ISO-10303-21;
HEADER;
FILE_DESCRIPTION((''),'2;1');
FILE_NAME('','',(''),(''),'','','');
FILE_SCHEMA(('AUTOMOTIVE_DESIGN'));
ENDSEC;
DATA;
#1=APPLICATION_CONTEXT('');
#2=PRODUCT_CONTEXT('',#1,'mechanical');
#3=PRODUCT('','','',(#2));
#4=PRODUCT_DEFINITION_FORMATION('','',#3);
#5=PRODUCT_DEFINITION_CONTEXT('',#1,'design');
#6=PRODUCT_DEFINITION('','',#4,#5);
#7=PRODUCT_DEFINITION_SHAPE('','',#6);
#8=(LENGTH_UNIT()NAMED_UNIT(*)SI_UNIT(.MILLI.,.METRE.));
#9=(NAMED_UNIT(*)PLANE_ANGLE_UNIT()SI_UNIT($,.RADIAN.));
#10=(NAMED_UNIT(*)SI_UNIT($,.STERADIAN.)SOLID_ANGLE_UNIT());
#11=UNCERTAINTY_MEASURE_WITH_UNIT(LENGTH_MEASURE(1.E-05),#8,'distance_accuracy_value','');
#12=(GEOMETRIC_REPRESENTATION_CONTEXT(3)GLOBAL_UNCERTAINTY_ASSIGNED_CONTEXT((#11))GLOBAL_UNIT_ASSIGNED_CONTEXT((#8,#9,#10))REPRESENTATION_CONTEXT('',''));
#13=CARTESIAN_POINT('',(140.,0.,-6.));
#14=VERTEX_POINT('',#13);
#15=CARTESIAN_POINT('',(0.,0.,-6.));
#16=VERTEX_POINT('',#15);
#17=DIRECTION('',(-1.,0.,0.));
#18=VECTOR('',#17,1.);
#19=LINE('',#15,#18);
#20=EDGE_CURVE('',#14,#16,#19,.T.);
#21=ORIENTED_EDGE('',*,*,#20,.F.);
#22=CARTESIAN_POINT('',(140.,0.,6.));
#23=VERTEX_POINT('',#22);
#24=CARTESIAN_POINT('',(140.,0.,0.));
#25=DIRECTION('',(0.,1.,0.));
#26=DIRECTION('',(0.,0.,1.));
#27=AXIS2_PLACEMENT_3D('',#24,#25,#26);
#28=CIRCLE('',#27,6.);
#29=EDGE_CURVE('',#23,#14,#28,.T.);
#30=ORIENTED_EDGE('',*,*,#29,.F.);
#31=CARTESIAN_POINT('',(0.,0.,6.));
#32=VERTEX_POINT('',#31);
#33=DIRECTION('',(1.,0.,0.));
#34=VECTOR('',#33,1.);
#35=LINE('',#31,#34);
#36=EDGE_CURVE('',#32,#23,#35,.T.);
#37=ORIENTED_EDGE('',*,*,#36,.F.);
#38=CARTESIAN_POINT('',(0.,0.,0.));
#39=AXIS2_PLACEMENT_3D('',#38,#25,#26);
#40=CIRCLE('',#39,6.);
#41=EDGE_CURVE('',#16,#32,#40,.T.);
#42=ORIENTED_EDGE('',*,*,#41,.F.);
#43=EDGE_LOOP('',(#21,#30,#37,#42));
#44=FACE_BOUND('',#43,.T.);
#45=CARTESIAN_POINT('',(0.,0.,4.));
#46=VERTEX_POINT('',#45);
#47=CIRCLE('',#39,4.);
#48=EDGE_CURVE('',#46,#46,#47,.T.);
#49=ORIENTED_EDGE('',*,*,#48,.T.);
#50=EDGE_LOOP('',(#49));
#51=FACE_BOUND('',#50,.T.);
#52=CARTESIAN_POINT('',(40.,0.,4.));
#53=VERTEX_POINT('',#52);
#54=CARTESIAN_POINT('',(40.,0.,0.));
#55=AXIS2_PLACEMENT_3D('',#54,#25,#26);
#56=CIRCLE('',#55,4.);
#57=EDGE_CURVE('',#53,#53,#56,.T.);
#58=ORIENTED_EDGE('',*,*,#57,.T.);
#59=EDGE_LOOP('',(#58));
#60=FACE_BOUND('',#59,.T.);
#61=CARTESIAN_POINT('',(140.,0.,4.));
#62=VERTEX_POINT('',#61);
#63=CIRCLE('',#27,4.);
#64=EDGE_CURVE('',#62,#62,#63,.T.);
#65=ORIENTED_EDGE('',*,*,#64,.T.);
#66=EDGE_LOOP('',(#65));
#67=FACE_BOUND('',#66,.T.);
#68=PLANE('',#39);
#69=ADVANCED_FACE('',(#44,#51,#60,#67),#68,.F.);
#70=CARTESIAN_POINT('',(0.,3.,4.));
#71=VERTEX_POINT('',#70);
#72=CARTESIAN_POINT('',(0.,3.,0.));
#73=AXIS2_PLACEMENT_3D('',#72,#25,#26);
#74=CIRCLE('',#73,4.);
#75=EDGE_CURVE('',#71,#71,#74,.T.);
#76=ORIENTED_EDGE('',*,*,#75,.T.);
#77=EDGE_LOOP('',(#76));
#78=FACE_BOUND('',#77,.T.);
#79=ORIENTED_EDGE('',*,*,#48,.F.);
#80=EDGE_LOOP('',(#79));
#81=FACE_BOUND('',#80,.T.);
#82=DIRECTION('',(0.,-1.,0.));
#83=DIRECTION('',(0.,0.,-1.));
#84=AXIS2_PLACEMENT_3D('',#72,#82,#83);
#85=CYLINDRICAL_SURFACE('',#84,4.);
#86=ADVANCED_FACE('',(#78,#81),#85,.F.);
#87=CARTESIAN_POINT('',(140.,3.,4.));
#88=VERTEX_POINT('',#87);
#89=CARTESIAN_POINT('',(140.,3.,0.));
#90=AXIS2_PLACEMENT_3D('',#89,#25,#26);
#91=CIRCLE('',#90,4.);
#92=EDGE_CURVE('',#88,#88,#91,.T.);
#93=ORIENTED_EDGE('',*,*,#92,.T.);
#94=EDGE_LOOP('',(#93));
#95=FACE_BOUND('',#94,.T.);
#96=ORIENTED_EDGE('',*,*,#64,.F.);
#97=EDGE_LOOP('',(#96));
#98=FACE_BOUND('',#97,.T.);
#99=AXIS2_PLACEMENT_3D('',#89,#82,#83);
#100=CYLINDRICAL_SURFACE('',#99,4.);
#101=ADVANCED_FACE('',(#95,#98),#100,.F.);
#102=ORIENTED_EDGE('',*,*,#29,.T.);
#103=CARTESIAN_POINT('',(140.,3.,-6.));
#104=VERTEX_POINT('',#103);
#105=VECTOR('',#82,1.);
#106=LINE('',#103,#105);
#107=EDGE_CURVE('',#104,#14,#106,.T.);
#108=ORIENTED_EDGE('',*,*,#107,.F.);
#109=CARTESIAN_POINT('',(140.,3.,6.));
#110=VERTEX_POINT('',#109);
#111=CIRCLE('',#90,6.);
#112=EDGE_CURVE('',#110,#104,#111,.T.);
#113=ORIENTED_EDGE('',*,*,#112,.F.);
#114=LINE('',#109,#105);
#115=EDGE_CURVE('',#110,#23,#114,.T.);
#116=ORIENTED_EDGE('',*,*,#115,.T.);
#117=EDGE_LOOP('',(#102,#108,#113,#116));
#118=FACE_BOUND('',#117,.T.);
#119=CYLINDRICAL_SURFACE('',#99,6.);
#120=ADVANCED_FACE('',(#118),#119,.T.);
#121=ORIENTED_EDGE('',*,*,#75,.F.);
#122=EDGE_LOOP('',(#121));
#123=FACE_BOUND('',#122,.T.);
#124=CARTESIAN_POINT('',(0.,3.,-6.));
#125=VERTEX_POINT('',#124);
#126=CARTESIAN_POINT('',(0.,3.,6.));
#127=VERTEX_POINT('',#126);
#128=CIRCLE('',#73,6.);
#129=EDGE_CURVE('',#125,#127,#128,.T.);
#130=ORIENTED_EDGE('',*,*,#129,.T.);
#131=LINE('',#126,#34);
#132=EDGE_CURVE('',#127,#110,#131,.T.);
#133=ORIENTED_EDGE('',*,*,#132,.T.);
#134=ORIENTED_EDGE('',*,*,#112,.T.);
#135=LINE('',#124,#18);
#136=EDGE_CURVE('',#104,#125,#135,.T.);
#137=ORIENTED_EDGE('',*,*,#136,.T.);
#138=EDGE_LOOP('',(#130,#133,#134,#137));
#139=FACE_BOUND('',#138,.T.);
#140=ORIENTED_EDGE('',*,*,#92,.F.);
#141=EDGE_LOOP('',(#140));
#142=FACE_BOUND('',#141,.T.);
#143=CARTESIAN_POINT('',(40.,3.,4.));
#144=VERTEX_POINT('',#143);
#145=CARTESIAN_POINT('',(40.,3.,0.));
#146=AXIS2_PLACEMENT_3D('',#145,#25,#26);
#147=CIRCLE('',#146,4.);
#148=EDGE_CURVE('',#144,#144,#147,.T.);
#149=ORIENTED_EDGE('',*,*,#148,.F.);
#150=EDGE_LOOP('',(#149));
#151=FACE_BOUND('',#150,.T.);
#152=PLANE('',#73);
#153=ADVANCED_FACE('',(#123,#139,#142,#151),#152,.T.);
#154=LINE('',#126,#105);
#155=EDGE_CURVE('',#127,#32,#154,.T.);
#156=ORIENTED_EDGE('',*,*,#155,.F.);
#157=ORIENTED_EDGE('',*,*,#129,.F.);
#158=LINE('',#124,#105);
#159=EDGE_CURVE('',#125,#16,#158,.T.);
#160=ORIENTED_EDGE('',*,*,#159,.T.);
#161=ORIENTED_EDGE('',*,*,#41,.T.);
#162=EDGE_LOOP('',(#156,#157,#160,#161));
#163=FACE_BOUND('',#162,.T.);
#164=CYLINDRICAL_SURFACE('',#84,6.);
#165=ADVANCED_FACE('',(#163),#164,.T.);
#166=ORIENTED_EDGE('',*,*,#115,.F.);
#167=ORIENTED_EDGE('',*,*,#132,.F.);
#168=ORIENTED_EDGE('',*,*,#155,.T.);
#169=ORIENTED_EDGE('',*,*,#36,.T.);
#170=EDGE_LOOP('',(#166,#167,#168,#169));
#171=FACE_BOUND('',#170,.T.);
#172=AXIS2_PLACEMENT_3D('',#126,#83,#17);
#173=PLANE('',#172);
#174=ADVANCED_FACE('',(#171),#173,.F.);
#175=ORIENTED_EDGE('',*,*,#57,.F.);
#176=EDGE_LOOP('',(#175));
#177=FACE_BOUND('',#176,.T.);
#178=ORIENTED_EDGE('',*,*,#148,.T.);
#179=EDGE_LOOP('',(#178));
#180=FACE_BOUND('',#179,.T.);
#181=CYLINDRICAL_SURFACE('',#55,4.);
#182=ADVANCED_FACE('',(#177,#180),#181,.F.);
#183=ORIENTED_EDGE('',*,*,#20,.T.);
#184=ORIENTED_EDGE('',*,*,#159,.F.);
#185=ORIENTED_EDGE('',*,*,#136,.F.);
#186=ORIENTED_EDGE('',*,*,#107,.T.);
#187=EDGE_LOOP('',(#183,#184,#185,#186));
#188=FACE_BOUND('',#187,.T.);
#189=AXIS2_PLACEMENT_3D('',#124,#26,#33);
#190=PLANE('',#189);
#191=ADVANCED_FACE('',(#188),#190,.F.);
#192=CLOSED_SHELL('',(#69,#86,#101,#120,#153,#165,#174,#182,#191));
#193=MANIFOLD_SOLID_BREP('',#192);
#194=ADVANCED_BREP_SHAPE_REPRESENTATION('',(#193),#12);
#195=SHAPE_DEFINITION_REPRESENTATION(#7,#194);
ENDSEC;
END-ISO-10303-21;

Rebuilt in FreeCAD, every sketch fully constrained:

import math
import FreeCAD as App
import Part
import Sketcher

doc = App.newDocument("Part")
body = doc.addObject("PartDesign::Body", "Body")

# Sketch on XZ plane
sketch1 = body.newObject("Sketcher::SketchObject", "Sketch")
sketch1.AttachmentSupport = (doc.getObject("XZ_Plane"), [""])
sketch1.MapMode = "FlatFace"
sketch1.addGeometry([
    Part.LineSegment(App.Vector(140, -6, 0), App.Vector(0, -6, 0)),  # 0
    Part.ArcOfCircle(Part.Circle(App.Vector(0, 0, 0), App.Vector(0, 0, 1), 6), math.radians(90), math.radians(270)),  # 1
    Part.LineSegment(App.Vector(0, 6, 0), App.Vector(140, 6, 0)),  # 2
    Part.ArcOfCircle(Part.Circle(App.Vector(140, 0, 0), App.Vector(0, 0, 1), 6), math.radians(-90), math.radians(90)),  # 3
    Part.Circle(App.Vector(140, 0, 0), App.Vector(0, 0, 1), 4),  # 4
    Part.Circle(App.Vector(0, 0, 0), App.Vector(0, 0, 1), 4),  # 5
], False)
sketch1.addConstraint([
    Sketcher.Constraint("Tangent", 0, 2, 1, 2),
    Sketcher.Constraint("Tangent", 1, 1, 2, 1),
    Sketcher.Constraint("Tangent", 2, 2, 3, 2),
    Sketcher.Constraint("Tangent", 3, 1, 0, 1),
    Sketcher.Constraint("Horizontal", 0),
    Sketcher.Constraint("Horizontal", 2),
    Sketcher.Constraint("Coincident", 1, 3, -1, 1),
    Sketcher.Constraint("Coincident", 5, 3, -1, 1),
    Sketcher.Constraint("Coincident", 4, 3, 3, 3),
    Sketcher.Constraint("Equal", 4, 5),
    Sketcher.Constraint("Diameter", 4, 8.0),
    Sketcher.Constraint("Radius", 1, 6.0),
    Sketcher.Constraint("DistanceX", 0, 2, 0, 1, 140.0),
])
pad1 = body.newObject("PartDesign::Pad", "Pad")
pad1.Profile = sketch1
pad1.Length = 3
pad1.Reversed = True

# Sketch on XZ plane
sketch2 = body.newObject("Sketcher::SketchObject", "Sketch001")
sketch2.AttachmentSupport = (doc.getObject("XZ_Plane"), [""])
sketch2.MapMode = "FlatFace"
sketch2.AttachmentOffset = App.Placement(App.Vector(0, 0, -3), App.Rotation())
sketch2.addGeometry(Part.Circle(App.Vector(40, 0, 0), App.Vector(0, 0, 1), 4), False)
sketch2.addConstraint([
    Sketcher.Constraint("PointOnObject", 0, 3, -1),
    Sketcher.Constraint("Diameter", 0, 8.0),
    Sketcher.Constraint("DistanceX", -1, 1, 0, 3, 40.0),
])
pocket1 = body.newObject("PartDesign::Pocket", "Pocket")
pocket1.Profile = sketch2
pocket1.Type = "ThroughAll"
pocket1.Reversed = True

doc.recompute()
